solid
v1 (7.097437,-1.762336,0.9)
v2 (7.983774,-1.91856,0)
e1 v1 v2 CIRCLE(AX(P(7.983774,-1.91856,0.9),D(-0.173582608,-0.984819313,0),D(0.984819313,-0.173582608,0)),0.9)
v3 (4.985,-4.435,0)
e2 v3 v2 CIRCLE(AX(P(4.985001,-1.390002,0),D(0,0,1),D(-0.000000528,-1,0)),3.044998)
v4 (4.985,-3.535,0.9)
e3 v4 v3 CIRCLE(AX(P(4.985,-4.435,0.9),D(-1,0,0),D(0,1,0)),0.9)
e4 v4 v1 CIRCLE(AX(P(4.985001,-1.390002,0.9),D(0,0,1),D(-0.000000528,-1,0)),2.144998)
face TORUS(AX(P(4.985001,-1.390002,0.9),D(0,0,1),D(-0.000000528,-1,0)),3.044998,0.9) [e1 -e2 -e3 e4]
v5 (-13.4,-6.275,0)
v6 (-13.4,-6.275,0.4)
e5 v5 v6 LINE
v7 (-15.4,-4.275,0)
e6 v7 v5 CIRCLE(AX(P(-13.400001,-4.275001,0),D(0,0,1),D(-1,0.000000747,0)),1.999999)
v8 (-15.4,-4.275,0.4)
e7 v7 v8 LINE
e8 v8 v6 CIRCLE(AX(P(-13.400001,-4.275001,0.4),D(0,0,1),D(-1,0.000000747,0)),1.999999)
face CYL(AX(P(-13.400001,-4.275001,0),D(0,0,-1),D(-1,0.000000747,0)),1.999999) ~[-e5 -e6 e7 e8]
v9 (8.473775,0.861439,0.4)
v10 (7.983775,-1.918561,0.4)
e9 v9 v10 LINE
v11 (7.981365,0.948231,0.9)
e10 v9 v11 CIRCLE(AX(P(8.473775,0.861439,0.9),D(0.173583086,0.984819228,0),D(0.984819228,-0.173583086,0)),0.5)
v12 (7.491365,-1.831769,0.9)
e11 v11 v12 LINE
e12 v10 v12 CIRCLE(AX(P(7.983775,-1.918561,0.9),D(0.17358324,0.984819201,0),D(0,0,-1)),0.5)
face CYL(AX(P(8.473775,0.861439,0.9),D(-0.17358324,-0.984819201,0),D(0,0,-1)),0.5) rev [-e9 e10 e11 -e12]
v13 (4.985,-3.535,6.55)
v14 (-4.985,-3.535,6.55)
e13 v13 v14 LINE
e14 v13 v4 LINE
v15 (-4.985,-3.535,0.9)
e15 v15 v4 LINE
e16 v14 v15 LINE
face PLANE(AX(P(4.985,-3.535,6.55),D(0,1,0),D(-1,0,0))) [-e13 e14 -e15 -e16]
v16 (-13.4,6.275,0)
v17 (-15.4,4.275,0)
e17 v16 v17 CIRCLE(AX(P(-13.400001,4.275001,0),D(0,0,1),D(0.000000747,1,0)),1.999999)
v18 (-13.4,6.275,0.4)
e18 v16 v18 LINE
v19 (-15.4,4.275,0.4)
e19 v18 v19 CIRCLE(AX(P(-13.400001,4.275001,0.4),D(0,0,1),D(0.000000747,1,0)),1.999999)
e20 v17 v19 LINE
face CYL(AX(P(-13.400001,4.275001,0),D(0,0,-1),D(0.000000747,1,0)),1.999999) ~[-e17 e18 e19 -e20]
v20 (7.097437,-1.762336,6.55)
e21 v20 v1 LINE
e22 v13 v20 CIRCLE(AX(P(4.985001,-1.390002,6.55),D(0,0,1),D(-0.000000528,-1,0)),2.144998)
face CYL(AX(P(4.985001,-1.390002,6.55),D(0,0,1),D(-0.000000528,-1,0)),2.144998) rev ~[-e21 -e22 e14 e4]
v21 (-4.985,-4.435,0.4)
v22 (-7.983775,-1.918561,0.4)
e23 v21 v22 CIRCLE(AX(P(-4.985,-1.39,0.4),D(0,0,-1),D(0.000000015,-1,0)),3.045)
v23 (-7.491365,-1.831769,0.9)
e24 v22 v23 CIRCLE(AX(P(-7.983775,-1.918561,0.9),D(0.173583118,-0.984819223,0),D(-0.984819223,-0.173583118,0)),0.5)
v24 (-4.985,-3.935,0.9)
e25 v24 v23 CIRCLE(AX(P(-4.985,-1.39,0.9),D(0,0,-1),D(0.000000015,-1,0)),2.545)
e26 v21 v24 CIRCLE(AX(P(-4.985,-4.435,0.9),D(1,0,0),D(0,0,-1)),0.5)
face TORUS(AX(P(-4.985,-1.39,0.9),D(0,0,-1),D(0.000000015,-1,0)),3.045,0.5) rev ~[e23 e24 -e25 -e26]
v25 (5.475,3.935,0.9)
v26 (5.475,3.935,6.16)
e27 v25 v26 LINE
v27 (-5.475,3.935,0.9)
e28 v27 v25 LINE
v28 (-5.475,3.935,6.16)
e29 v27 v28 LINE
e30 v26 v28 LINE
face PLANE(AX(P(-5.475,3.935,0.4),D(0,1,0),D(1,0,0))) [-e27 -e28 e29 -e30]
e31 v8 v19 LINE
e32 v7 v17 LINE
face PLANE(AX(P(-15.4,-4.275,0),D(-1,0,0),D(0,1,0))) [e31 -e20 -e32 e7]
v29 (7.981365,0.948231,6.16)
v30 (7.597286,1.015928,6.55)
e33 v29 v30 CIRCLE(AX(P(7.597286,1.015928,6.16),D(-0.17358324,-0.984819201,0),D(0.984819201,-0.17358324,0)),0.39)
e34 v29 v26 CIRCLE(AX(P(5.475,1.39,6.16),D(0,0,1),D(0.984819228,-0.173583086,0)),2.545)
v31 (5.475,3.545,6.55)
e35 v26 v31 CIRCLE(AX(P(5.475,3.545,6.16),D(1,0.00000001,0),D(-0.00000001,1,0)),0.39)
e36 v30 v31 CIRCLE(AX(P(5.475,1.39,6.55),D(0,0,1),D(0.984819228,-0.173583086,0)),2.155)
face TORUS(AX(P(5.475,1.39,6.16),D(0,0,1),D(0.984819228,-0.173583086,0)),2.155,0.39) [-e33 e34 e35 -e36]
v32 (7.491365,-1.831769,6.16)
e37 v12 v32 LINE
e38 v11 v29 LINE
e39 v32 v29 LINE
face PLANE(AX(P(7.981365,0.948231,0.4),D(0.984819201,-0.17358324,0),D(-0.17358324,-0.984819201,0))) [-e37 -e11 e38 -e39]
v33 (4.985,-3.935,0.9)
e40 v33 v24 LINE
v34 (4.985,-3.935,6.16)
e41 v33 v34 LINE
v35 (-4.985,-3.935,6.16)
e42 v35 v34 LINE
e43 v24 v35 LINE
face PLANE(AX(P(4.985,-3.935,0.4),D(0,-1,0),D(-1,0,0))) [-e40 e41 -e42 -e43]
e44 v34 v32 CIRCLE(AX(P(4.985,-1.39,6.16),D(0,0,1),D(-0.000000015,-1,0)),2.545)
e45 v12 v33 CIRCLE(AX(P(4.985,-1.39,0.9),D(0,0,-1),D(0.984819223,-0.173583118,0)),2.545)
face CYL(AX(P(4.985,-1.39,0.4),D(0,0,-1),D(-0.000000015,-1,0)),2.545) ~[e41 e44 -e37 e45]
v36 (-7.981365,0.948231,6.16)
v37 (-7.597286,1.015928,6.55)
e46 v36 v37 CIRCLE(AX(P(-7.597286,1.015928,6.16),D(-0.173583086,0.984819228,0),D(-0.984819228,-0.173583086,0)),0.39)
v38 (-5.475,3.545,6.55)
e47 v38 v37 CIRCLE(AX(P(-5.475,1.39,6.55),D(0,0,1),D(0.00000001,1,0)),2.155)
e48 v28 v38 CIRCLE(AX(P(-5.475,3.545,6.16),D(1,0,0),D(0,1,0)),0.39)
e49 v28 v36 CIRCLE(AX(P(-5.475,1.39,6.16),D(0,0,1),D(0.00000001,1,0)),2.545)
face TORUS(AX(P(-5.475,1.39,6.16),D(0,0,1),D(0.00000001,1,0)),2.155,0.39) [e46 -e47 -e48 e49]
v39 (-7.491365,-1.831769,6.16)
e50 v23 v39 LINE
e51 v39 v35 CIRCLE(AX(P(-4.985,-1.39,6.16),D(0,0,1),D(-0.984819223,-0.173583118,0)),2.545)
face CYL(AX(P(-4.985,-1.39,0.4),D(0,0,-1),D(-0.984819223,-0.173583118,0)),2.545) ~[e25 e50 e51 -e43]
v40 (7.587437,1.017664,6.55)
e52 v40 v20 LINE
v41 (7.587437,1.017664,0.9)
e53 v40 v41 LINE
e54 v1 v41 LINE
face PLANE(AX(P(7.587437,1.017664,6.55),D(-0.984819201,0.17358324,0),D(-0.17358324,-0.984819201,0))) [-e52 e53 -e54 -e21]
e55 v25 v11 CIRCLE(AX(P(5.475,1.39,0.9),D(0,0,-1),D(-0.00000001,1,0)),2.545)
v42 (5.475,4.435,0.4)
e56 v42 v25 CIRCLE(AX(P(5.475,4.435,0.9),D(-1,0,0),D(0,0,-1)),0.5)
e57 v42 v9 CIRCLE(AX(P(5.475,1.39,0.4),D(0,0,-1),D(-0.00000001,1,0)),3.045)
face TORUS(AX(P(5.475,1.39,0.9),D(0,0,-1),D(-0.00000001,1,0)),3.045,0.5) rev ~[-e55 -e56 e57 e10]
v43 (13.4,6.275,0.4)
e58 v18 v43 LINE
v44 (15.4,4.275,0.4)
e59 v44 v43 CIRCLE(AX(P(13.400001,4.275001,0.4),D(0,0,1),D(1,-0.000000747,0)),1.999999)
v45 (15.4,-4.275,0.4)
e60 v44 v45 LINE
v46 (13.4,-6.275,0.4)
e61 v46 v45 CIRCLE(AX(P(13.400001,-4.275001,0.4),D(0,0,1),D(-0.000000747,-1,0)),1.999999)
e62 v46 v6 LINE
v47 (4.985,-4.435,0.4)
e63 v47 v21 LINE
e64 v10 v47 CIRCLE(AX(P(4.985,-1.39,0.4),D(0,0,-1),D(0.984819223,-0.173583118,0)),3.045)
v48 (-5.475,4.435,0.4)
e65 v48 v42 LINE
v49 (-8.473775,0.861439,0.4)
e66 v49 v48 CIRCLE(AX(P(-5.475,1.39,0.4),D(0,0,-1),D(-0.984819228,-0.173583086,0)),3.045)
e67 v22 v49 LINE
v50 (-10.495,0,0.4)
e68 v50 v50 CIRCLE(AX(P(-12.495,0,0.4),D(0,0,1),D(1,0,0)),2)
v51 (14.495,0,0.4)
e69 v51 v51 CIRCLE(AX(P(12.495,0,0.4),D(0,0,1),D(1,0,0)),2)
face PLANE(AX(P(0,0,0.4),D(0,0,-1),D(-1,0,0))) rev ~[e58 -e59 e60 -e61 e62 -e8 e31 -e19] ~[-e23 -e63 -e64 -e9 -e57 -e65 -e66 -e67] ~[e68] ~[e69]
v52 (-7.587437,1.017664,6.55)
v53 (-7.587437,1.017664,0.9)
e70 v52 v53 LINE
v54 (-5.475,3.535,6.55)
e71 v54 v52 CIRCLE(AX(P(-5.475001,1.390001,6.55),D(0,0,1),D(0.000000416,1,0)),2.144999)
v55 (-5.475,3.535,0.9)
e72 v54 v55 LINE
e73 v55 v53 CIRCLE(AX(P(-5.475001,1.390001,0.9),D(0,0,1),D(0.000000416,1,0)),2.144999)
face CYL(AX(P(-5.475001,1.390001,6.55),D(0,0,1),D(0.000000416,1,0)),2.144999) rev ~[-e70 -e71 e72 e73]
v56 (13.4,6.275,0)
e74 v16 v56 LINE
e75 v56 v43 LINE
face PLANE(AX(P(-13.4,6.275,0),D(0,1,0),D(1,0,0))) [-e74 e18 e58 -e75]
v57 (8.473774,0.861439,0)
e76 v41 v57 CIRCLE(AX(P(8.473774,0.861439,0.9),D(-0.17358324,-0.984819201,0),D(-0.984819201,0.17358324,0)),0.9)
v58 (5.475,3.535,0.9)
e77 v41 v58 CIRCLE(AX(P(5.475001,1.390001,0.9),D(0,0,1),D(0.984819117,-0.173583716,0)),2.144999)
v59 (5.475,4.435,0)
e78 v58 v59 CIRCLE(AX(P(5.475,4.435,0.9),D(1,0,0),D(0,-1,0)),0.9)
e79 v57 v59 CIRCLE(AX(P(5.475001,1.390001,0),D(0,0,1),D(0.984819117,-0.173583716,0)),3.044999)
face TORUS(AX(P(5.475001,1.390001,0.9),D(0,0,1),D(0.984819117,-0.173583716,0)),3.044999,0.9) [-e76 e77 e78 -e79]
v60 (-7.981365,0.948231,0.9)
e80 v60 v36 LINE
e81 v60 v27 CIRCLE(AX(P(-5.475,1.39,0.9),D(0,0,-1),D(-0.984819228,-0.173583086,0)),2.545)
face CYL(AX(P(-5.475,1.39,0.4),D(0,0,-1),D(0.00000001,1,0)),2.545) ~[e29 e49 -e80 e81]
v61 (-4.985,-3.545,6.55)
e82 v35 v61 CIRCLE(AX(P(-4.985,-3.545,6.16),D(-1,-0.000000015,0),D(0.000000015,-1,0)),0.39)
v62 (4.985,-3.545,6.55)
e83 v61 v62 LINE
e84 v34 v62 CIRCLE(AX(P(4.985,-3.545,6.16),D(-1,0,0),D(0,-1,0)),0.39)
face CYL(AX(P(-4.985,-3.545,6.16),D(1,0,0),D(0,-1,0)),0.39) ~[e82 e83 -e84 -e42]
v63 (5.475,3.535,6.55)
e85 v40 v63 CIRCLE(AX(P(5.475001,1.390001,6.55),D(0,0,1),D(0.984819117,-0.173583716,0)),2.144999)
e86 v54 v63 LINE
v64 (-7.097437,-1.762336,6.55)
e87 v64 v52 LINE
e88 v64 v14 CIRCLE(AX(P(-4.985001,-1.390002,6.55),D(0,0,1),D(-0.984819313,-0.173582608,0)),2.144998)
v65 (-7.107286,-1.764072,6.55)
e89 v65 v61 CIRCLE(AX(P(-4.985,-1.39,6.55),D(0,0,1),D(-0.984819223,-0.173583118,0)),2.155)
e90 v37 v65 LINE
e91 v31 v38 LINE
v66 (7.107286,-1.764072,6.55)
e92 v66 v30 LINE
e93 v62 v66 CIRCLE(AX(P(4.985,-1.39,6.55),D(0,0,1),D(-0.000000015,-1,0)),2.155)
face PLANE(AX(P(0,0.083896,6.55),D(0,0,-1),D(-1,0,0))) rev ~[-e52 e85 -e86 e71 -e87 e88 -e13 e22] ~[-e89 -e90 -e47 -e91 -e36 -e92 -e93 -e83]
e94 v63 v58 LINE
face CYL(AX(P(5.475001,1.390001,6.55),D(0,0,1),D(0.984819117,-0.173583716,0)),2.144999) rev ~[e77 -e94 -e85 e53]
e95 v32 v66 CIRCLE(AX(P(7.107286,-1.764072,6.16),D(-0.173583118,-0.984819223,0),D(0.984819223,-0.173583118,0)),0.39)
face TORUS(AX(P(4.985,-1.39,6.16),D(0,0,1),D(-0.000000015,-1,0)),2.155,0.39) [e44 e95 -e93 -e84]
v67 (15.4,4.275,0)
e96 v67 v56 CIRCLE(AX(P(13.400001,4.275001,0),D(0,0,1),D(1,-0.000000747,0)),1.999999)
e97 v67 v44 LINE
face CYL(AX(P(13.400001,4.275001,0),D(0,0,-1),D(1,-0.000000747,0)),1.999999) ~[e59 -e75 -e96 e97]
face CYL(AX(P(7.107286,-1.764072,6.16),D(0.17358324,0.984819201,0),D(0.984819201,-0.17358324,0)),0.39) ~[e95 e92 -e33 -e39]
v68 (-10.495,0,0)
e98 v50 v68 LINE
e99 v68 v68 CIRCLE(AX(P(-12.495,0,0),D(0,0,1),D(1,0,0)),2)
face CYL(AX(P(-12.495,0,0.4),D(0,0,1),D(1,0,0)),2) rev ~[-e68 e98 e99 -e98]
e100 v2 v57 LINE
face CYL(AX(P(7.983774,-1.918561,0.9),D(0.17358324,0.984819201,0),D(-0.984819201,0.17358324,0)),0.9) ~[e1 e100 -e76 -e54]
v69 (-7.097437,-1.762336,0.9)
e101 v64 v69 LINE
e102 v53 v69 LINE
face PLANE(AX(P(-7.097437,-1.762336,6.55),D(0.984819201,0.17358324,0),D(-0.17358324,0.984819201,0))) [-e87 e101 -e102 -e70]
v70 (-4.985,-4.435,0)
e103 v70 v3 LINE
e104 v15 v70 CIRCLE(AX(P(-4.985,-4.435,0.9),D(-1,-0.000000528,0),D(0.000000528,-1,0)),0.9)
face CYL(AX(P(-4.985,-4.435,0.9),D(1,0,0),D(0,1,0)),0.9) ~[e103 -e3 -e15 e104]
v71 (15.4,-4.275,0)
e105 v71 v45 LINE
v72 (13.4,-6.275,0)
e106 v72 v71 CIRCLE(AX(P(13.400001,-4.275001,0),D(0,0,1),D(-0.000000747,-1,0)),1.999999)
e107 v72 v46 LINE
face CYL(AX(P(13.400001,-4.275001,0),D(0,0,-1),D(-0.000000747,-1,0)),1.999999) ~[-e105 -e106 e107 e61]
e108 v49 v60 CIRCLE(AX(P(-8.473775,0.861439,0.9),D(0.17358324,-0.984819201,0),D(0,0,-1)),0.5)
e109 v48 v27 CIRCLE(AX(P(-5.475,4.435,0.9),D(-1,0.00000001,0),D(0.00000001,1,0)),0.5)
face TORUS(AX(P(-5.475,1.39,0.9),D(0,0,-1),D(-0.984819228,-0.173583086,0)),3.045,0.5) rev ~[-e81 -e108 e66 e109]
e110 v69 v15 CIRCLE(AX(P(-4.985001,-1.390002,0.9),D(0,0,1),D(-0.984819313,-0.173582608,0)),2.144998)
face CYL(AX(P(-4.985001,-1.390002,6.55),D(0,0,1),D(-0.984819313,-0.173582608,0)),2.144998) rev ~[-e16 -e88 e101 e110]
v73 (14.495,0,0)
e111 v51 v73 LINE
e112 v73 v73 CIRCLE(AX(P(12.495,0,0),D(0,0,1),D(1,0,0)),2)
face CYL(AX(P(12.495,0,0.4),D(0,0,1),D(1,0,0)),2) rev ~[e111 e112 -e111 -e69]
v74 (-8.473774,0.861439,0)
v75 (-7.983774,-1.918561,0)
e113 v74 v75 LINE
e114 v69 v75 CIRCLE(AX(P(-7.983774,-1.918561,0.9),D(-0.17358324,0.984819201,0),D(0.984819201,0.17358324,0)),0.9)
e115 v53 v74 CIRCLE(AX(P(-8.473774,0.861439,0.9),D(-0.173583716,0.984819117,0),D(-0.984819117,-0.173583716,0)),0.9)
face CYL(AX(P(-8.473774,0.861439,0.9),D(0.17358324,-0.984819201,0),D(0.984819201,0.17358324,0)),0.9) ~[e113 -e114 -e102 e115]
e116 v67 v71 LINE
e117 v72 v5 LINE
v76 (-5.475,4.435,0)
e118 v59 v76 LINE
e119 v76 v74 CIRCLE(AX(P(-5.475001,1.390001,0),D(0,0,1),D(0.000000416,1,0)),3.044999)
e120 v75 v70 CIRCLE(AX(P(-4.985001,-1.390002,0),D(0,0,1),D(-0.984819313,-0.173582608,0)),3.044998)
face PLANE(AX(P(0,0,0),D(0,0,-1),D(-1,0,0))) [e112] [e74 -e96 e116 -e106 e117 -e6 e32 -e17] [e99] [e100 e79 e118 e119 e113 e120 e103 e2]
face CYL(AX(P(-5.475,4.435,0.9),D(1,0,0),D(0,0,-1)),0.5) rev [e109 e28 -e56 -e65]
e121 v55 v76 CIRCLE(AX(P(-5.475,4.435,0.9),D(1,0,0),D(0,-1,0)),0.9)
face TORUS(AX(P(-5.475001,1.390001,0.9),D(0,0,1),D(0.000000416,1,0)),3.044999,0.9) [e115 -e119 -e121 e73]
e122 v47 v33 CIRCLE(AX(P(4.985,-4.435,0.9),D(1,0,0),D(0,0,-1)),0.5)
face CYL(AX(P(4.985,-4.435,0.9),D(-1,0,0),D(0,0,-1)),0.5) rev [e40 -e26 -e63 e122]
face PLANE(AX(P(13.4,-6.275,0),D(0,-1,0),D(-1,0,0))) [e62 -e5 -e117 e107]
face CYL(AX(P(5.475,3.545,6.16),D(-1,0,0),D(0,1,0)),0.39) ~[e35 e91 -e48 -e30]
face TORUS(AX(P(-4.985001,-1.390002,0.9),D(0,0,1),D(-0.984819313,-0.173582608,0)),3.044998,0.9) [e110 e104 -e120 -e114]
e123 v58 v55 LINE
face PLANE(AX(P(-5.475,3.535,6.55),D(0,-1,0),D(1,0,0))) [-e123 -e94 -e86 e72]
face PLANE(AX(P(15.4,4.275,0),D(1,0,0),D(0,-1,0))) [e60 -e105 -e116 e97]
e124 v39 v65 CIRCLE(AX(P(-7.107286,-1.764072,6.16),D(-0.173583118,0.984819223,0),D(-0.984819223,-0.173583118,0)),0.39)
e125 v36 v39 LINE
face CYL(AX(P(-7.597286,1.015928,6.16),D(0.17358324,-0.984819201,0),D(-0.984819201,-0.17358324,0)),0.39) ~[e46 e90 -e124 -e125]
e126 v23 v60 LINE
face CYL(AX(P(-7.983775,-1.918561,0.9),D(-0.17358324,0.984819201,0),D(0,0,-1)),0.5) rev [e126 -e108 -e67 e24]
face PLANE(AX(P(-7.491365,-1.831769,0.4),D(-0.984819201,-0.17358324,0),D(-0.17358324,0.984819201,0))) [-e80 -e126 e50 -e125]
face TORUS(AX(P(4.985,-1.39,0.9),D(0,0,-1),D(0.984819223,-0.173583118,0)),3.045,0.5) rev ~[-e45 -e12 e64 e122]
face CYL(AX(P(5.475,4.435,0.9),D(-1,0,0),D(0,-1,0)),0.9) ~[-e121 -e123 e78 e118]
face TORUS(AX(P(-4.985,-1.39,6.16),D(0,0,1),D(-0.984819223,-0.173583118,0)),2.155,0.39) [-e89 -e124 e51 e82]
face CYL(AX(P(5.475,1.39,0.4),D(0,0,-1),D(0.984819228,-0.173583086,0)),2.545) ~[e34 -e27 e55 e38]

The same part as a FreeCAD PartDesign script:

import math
import FreeCAD as App
import Part
import Sketcher


def edges_at(feature, points):
    """Names of the edges that pass closest to the given points."""
    edges = feature.Shape.Edges
    near = lambda p: min(range(len(edges)), key=lambda i: edges[i].distToShape(Part.Vertex(*p))[0])
    return sorted({f"Edge{near(p) + 1}" for p in points})

doc = App.newDocument("Part")
body = doc.addObject("PartDesign::Body", "Body")

# Sketch on XY plane
sketch1 = body.newObject("Sketcher::SketchObject", "Sketch")
sketch1.AttachmentSupport = (doc.getObject("XY_Plane"), [""])
sketch1.MapMode = "FlatFace"
sketch1.addGeometry([
    Part.LineSegment(App.Vector(13.4, 6.3, 0), App.Vector(-13.4, 6.3, 0)),  # 0
    Part.ArcOfCircle(Part.Circle(App.Vector(-13.4, 4.3, 0), App.Vector(0, 0, 1), 2), math.radians(90), math.radians(180)),  # 1
    Part.LineSegment(App.Vector(-15.4, 4.3, 0), App.Vector(-15.4, -4.3, 0)),  # 2
    Part.ArcOfCircle(Part.Circle(App.Vector(-13.4, -4.3, 0), App.Vector(0, 0, 1), 2), math.radians(180), math.radians(270)),  # 3
    Part.LineSegment(App.Vector(-13.4, -6.3, 0), App.Vector(13.4, -6.3, 0)),  # 4
    Part.ArcOfCircle(Part.Circle(App.Vector(13.4, -4.3, 0), App.Vector(0, 0, 1), 2), math.radians(-90), math.radians(0)),  # 5
    Part.LineSegment(App.Vector(15.4, -4.3, 0), App.Vector(15.4, 4.3, 0)),  # 6
    Part.ArcOfCircle(Part.Circle(App.Vector(13.4, 4.3, 0), App.Vector(0, 0, 1), 2), math.radians(0), math.radians(90)),  # 7
], False)
sketch1.addConstraint([
    Sketcher.Constraint("Tangent", 0, 2, 1, 1),
    Sketcher.Constraint("Tangent", 1, 2, 2, 1),
    Sketcher.Constraint("Tangent", 2, 2, 3, 1),
    Sketcher.Constraint("Tangent", 3, 2, 4, 1),
    Sketcher.Constraint("Tangent", 4, 2, 5, 1),
    Sketcher.Constraint("Tangent", 5, 2, 6, 1),
    Sketcher.Constraint("Tangent", 6, 2, 7, 1),
    Sketcher.Constraint("Tangent", 7, 2, 0, 1),
    Sketcher.Constraint("Horizontal", 0),
    Sketcher.Constraint("Vertical", 2),
    Sketcher.Constraint("Horizontal", 4),
    Sketcher.Constraint("Vertical", 6),
    Sketcher.Constraint("Equal", 1, 3),
    Sketcher.Constraint("Equal", 3, 5),
    Sketcher.Constraint("Equal", 5, 7),
    Sketcher.Constraint("Symmetric", 1, 3, 5, 3, -1, 1),
    Sketcher.Constraint("Radius", 1, 1.999999),
    Sketcher.Constraint("DistanceX", 0, 2, 0, 1, 26.8),
    Sketcher.Constraint("DistanceY", 2, 2, 2, 1, 8.55),
])
pad1 = body.newObject("PartDesign::Pad", "Pad")
pad1.Profile = sketch1
pad1.Length = 0.4

# Sketch on XY plane
sketch2 = body.newObject("Sketcher::SketchObject", "Sketch001")
sketch2.AttachmentSupport = (doc.getObject("XY_Plane"), [""])
sketch2.MapMode = "FlatFace"
sketch2.AttachmentOffset = App.Placement(App.Vector(0, 0, 0.4), App.Rotation())
sketch2.addGeometry([
    Part.Circle(App.Vector(-12.5, 0, 0), App.Vector(0, 0, 1), 2),
    Part.Circle(App.Vector(12.5, 0, 0), App.Vector(0, 0, 1), 2),
], False)
sketch2.addConstraint([
    Sketcher.Constraint("Equal", 0, 1),
    Sketcher.Constraint("Symmetric", 0, 3, 1, 3, -1, 1),
    Sketcher.Constraint("PointOnObject", 0, 3, -1),
    Sketcher.Constraint("Diameter", 0, 4.0),
    Sketcher.Constraint("DistanceX", 0, 3, 1, 3, 24.99),
])
pocket1 = body.newObject("PartDesign::Pocket", "Pocket")
pocket1.Profile = sketch2
pocket1.Length = 5

# Sketch on XY plane
sketch3 = body.newObject("Sketcher::SketchObject", "Sketch002")
sketch3.AttachmentSupport = (doc.getObject("XY_Plane"), [""])
sketch3.MapMode = "FlatFace"
sketch3.AttachmentOffset = App.Placement(App.Vector(0, 0, 0.4), App.Rotation())
sketch3.addGeometry([
    Part.LineSegment(App.Vector(5.5, 3.9, 0), App.Vector(-5.5, 3.9, 0)),  # 0
    Part.ArcOfCircle(Part.Circle(App.Vector(-5.5, 1.4, 0), App.Vector(0, 0, 1), 2.5), math.radians(90), math.radians(190)),  # 1
    Part.LineSegment(App.Vector(-8, 0.9, 0), App.Vector(-7.5, -1.8, 0)),  # 2
    Part.ArcOfCircle(Part.Circle(App.Vector(-5, -1.4, 0), App.Vector(0, 0, 1), 2.5), math.radians(-170), math.radians(-90)),  # 3
    Part.LineSegment(App.Vector(-5, -3.9, 0), App.Vector(5, -3.9, 0)),  # 4
    Part.ArcOfCircle(Part.Circle(App.Vector(5, -1.4, 0), App.Vector(0, 0, 1), 2.5), math.radians(-90), math.radians(-10)),  # 5
    Part.LineSegment(App.Vector(7.5, -1.8, 0), App.Vector(8, 0.9, 0)),  # 6
    Part.ArcOfCircle(Part.Circle(App.Vector(5.5, 1.4, 0), App.Vector(0, 0, 1), 2.5), math.radians(-10), math.radians(90)),  # 7
], False)
sketch3.addConstraint([
    Sketcher.Constraint("Tangent", 0, 2, 1, 1),
    Sketcher.Constraint("Tangent", 1, 2, 2, 1),
    Sketcher.Constraint("Tangent", 2, 2, 3, 1),
    Sketcher.Constraint("Tangent", 3, 2, 4, 1),
    Sketcher.Constraint("Tangent", 4, 2, 5, 1),
    Sketcher.Constraint("Tangent", 5, 2, 6, 1),
    Sketcher.Constraint("Tangent", 6, 2, 7, 1),
    Sketcher.Constraint("Tangent", 7, 2, 0, 1),
    Sketcher.Constraint("Horizontal", 0),
    Sketcher.Constraint("Horizontal", 4),
    Sketcher.Constraint("Equal", 1, 3),
    Sketcher.Constraint("Equal", 3, 5),
    Sketcher.Constraint("Equal", 5, 7),
    Sketcher.Constraint("Symmetric", 2, 2, 5, 2, -2),
    Sketcher.Constraint("Radius", 1, 2.545),
    Sketcher.Constraint("DistanceX", 0, 2, 0, 1, 10.95),
    Sketcher.Constraint("DistanceX", 4, 1, 4, 2, 9.97),
    Sketcher.Constraint("DistanceY", -1, 1, 1, 3, 1.39),
    Sketcher.Constraint("DistanceY", 3, 3, -1, 1, 1.39),
])
pad2 = body.newObject("PartDesign::Pad", "Pad001")
pad2.Profile = sketch3
pad2.Length = 6.15

# Sketch on XY plane
sketch4 = body.newObject("Sketcher::SketchObject", "Sketch003")
sketch4.AttachmentSupport = (doc.getObject("XY_Plane"), [""])
sketch4.MapMode = "FlatFace"
sketch4.AttachmentOffset = App.Placement(App.Vector(0, 0, 6.55), App.Rotation())
sketch4.addGeometry([
    Part.LineSegment(App.Vector(5.5, 3.5, 0), App.Vector(-5.5, 3.5, 0)),  # 0
    Part.ArcOfCircle(Part.Circle(App.Vector(-5.5, 1.4, 0), App.Vector(0, 0, 1), 2.1), math.radians(90), math.radians(190)),  # 1
    Part.LineSegment(App.Vector(-7.6, 1, 0), App.Vector(-7.1, -1.8, 0)),  # 2
    Part.ArcOfCircle(Part.Circle(App.Vector(-5, -1.4, 0), App.Vector(0, 0, 1), 2.1), math.radians(-170), math.radians(-90)),  # 3
    Part.LineSegment(App.Vector(-5, -3.5, 0), App.Vector(5, -3.5, 0)),  # 4
    Part.ArcOfCircle(Part.Circle(App.Vector(5, -1.4, 0), App.Vector(0, 0, 1), 2.1), math.radians(-90), math.radians(-10)),  # 5
    Part.LineSegment(App.Vector(7.1, -1.8, 0), App.Vector(7.6, 1, 0)),  # 6
    Part.ArcOfCircle(Part.Circle(App.Vector(5.5, 1.4, 0), App.Vector(0, 0, 1), 2.1), math.radians(-10), math.radians(90)),  # 7
], False)
sketch4.addConstraint([
    Sketcher.Constraint("Tangent", 0, 2, 1, 1),
    Sketcher.Constraint("Tangent", 1, 2, 2, 1),
    Sketcher.Constraint("Tangent", 2, 2, 3, 1),
    Sketcher.Constraint("Tangent", 3, 2, 4, 1),
    Sketcher.Constraint("Tangent", 4, 2, 5, 1),
    Sketcher.Constraint("Tangent", 5, 2, 6, 1),
    Sketcher.Constraint("Tangent", 6, 2, 7, 1),
    Sketcher.Constraint("Tangent", 7, 2, 0, 1),
    Sketcher.Constraint("Horizontal", 0),
    Sketcher.Constraint("Horizontal", 4),
    Sketcher.Constraint("Equal", 1, 3),
    Sketcher.Constraint("Equal", 3, 5),
    Sketcher.Constraint("Equal", 5, 7),
    Sketcher.Constraint("Symmetric", 2, 2, 5, 2, -2),
    Sketcher.Constraint("Radius", 1, 2.144999),
    Sketcher.Constraint("DistanceX", 0, 2, 0, 1, 10.95),
    Sketcher.Constraint("DistanceX", 4, 1, 4, 2, 9.97),
    Sketcher.Constraint("DistanceY", -1, 1, 1, 3, 1.390001),
    Sketcher.Constraint("DistanceY", 3, 3, -1, 1, 1.390002),
])
pocket2 = body.newObject("PartDesign::Pocket", "Pocket001")
pocket2.Profile = sketch4
pocket2.Type = "ThroughAll"
doc.recompute()

fillet = body.newObject("PartDesign::Fillet", "Fillet")
fillet.Base = (pocket2, edges_at(pocket2, [(0, -3.935, 0.4)]))
fillet.Radius = 0.5
doc.recompute()

fillet2 = body.newObject("PartDesign::Fillet", "Fillet001")
fillet2.Base = (fillet, edges_at(fillet, [(-6.621, -3.34, 6.55)]))
fillet2.Radius = 0.39
doc.recompute()

fillet3 = body.newObject("PartDesign::Fillet", "Fillet002")
fillet3.Base = (fillet2, edges_at(fillet2, [(0, 3.535, 0)]))
fillet3.Radius = 0.9

doc.recompute()
